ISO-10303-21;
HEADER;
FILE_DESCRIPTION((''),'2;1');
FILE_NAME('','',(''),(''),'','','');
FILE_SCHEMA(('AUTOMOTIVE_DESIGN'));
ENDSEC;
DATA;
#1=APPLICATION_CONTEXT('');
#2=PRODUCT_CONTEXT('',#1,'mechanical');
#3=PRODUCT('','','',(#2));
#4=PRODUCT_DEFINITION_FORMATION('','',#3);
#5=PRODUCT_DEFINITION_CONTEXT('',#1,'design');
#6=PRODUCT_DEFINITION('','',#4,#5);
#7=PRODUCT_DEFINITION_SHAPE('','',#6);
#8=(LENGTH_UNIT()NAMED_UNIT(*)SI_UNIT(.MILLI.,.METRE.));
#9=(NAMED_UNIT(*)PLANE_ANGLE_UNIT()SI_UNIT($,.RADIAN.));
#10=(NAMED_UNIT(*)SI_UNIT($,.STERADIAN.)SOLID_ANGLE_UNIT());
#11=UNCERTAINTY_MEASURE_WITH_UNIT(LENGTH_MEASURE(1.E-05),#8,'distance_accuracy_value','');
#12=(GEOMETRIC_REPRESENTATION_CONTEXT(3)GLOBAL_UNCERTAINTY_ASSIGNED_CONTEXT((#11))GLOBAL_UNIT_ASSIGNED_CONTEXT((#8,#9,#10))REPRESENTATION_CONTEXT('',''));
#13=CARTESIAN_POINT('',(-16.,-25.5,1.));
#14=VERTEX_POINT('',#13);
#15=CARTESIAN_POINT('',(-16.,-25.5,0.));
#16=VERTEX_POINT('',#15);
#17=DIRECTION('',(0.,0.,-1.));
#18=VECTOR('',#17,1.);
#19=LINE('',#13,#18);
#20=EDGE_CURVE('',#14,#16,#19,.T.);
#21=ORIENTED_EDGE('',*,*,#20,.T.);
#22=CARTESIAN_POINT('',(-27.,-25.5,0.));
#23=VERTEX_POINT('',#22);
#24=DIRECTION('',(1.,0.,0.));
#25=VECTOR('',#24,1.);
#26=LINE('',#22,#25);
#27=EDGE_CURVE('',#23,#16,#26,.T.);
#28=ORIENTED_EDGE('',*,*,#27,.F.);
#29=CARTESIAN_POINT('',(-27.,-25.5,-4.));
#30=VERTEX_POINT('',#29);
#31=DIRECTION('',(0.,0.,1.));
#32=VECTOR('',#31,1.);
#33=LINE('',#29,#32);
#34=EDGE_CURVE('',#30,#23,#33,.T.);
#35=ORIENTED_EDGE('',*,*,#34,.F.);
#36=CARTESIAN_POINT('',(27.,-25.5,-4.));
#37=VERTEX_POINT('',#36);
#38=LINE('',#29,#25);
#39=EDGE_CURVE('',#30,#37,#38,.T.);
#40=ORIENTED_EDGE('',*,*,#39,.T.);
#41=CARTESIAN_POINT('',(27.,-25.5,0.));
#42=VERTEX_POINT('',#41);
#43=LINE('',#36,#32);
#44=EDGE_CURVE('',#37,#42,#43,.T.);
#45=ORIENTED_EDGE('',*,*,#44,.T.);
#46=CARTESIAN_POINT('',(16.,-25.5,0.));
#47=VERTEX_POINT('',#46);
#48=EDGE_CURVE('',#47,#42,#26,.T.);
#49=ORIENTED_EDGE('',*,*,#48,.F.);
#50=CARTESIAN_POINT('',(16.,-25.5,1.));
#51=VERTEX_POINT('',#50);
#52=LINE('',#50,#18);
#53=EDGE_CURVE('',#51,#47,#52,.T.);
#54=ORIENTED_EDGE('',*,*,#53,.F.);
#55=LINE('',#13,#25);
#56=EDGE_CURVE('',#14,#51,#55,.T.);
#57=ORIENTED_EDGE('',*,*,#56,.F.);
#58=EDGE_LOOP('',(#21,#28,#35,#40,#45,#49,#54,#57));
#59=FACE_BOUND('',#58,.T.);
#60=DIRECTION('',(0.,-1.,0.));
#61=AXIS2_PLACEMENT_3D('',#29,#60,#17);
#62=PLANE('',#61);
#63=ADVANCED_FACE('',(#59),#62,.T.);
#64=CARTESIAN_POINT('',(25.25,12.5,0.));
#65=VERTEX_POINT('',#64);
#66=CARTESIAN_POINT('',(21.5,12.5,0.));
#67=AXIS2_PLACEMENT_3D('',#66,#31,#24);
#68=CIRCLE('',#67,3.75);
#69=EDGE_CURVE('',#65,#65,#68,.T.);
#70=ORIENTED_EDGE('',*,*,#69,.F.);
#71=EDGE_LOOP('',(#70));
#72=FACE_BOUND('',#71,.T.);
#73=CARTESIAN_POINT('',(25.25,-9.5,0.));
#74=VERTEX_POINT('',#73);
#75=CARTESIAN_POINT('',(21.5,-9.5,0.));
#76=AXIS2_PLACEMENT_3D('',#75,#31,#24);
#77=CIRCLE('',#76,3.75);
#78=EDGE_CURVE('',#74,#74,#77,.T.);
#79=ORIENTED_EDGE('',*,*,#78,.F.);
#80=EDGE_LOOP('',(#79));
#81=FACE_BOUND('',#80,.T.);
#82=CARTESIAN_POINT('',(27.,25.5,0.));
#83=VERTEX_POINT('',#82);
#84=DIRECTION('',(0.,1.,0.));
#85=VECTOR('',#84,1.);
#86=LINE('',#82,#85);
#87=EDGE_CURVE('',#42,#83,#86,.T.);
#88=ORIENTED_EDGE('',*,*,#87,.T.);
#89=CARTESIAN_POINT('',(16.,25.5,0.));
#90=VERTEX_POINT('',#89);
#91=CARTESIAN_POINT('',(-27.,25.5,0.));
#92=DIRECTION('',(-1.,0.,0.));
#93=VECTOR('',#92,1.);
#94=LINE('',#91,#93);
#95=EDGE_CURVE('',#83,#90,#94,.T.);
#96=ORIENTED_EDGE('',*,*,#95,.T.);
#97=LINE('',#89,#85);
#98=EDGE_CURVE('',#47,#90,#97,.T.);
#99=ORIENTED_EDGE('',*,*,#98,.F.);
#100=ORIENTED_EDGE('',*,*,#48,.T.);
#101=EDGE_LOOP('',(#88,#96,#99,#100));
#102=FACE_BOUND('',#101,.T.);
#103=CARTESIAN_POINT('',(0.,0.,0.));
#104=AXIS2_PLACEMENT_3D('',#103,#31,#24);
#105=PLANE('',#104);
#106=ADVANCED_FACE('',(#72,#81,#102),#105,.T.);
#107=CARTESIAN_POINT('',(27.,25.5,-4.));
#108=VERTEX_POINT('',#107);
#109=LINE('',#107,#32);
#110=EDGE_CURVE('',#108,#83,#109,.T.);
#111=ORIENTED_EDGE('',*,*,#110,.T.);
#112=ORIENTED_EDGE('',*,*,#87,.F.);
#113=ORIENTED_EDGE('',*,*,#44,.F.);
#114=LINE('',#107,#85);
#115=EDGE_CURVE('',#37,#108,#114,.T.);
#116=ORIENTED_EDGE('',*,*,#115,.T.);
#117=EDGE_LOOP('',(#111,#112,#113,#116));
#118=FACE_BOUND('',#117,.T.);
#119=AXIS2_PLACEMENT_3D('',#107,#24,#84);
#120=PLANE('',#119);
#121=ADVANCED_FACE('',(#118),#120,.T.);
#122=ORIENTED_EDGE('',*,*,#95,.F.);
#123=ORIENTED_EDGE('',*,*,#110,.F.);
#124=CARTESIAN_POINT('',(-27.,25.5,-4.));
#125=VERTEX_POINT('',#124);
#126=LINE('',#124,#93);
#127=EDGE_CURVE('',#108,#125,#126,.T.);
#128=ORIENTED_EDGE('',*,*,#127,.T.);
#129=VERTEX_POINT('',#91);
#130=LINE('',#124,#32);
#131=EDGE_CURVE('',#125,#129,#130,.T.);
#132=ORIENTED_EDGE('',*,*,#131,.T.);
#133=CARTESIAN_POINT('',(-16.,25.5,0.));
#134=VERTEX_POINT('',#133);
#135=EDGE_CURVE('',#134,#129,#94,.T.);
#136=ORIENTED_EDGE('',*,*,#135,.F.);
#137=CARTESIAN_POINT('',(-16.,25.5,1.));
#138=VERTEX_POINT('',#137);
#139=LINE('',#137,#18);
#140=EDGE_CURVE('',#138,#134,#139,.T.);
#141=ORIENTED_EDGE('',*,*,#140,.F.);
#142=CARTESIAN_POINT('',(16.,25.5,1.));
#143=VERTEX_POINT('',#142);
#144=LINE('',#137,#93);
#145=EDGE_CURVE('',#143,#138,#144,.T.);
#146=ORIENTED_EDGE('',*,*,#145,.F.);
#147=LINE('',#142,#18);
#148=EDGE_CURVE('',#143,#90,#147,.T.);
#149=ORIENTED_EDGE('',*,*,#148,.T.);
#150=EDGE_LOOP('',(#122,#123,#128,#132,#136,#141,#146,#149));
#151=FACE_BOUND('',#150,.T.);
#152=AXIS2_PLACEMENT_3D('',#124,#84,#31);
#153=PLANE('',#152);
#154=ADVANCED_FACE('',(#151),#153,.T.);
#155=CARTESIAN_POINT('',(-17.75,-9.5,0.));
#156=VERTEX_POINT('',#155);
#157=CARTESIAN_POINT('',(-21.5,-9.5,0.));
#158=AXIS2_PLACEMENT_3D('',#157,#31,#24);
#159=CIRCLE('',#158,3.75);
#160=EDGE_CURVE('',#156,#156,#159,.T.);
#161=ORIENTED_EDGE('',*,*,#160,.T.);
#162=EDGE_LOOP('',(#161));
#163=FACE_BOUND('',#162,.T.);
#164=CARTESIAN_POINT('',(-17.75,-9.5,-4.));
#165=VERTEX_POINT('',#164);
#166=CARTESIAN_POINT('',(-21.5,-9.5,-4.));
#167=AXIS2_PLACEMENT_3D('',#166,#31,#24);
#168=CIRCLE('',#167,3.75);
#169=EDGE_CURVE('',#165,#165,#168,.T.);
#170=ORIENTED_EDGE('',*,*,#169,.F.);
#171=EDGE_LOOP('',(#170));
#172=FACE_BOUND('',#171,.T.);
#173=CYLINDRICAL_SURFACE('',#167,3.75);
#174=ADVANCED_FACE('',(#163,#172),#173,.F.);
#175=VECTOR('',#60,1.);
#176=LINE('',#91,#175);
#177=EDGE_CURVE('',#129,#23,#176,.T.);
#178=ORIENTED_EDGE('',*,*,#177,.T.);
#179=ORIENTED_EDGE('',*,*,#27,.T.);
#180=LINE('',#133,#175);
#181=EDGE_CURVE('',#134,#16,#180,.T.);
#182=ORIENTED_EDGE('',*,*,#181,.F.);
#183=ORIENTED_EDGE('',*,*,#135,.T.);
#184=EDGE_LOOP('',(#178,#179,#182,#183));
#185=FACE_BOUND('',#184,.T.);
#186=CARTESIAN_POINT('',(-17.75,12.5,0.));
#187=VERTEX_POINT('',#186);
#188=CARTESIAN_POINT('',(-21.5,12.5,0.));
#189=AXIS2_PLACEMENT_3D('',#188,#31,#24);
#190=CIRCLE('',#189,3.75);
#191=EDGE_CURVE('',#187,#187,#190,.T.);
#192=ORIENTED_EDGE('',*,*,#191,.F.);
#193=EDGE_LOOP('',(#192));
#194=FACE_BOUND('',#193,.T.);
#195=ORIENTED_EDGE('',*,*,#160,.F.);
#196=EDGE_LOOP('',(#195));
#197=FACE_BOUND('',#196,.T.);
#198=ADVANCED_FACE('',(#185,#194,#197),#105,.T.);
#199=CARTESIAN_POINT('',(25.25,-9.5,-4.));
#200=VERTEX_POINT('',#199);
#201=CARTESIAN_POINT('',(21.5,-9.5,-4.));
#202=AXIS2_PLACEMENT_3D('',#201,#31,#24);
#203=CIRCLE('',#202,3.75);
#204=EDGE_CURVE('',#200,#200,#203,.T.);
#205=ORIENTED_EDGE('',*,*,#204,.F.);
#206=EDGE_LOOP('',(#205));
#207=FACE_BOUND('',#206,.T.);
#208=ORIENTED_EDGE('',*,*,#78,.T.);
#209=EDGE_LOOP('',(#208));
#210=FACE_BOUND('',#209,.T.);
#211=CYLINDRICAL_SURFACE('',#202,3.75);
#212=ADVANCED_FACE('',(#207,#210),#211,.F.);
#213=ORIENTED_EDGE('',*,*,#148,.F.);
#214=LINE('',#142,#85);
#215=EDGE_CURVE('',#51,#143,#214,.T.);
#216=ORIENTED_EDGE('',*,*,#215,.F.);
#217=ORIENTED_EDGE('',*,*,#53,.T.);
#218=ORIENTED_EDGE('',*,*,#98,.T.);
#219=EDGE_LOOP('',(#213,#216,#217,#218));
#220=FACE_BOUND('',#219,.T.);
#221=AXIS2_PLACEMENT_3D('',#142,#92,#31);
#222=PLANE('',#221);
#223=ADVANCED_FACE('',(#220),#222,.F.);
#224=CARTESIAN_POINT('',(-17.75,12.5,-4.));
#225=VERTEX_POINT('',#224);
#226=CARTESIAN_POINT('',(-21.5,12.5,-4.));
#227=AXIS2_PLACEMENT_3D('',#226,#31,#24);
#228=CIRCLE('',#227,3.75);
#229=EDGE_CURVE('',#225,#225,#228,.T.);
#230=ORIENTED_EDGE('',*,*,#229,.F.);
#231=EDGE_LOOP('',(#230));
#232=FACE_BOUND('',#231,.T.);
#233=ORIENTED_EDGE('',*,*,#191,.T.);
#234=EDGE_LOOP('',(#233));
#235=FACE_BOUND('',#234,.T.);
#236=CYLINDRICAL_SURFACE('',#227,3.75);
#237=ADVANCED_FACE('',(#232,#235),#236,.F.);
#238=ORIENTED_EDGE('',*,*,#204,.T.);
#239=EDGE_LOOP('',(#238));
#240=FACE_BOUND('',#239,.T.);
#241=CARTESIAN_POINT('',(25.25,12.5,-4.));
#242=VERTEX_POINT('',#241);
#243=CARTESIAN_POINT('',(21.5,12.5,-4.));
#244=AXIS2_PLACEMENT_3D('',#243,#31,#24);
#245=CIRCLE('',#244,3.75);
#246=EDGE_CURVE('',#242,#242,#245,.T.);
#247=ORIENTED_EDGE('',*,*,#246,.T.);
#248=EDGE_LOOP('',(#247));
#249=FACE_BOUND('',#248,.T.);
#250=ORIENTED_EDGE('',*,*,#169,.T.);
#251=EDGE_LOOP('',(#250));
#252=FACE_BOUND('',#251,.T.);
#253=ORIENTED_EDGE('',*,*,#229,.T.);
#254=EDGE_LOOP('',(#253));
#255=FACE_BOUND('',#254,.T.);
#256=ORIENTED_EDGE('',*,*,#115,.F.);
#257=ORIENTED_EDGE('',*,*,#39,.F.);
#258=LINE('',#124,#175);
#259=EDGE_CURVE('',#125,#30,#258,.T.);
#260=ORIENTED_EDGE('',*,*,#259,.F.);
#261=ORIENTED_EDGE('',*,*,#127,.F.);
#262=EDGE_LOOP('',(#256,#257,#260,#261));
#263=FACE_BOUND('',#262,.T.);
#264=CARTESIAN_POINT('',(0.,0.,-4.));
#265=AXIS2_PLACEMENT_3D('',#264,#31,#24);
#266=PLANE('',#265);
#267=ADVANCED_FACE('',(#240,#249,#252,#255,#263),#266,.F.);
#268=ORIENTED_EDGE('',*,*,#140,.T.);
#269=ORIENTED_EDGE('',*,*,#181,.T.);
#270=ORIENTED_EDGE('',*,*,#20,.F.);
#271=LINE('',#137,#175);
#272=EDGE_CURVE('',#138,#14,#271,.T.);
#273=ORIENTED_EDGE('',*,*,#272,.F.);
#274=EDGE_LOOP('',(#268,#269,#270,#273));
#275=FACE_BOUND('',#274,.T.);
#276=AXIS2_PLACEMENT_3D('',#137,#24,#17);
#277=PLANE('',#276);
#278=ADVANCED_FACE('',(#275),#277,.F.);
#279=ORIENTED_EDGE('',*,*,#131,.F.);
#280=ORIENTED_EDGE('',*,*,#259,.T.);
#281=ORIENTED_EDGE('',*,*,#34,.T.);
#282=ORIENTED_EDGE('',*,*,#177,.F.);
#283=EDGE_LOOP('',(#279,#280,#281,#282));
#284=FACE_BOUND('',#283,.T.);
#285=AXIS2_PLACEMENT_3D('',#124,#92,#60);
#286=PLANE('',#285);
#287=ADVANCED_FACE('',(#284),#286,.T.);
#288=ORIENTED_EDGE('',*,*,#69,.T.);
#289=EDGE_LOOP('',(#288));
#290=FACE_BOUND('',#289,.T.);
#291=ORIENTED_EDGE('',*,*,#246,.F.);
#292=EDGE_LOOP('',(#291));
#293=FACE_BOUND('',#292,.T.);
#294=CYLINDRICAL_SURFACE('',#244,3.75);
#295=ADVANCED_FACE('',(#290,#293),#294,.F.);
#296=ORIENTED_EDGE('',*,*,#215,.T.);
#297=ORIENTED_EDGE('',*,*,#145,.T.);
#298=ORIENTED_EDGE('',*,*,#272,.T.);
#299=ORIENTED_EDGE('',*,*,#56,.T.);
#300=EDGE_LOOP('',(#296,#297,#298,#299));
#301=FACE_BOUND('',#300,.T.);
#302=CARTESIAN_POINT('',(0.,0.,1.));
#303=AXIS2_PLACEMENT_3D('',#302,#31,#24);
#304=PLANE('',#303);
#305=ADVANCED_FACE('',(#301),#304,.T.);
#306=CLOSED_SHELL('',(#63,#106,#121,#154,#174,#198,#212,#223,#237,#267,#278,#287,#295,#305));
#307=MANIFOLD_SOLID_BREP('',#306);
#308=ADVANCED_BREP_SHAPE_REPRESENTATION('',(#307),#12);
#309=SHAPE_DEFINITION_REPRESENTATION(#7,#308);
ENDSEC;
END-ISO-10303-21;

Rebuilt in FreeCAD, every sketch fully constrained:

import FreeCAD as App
import Part
import Sketcher
from FreeCAD import Vector
Q = App.Units.Quantity

doc = App.newDocument("Part")
body = doc.addObject("PartDesign::Body", "Body")

# Sketch on XY plane
sketch1 = body.newObject("Sketcher::SketchObject", "Sketch")
sketch1.AttachmentSupport = (doc.getObject("XY_Plane"), [""])
sketch1.MapMode = "FlatFace"
sketch1.addGeometry([
    Part.LineSegment(Vector(-27, 25.5, 0), Vector(-27, -25.5, 0)),  # 0
    Part.LineSegment(Vector(-27, -25.5, 0), Vector(27, -25.5, 0)),  # 1
    Part.LineSegment(Vector(27, -25.5, 0), Vector(27, 25.5, 0)),  # 2
    Part.LineSegment(Vector(27, 25.5, 0), Vector(-27, 25.5, 0)),  # 3
    Part.Circle(Vector(-21.5, -9.5, 0), Vector(0, 0, 1), 3.8),  # 4
    Part.Circle(Vector(21.5, -9.5, 0), Vector(0, 0, 1), 3.8),  # 5
    Part.Circle(Vector(-21.5, 12.5, 0), Vector(0, 0, 1), 3.8),  # 6
    Part.Circle(Vector(21.5, 12.5, 0), Vector(0, 0, 1), 3.8),  # 7
], False)
sketch1.addConstraint([
    Sketcher.Constraint("Coincident", 0, 2, 1, 1),
    Sketcher.Constraint("Coincident", 1, 2, 2, 1),
    Sketcher.Constraint("Coincident", 2, 2, 3, 1),
    Sketcher.Constraint("Coincident", 3, 2, 0, 1),
    Sketcher.Constraint("Vertical", 0),
    Sketcher.Constraint("Horizontal", 1),
    Sketcher.Constraint("Vertical", 2),
    Sketcher.Constraint("Horizontal", 3),
    Sketcher.Constraint("Equal", 4, 5),
    Sketcher.Constraint("Equal", 5, 6),
    Sketcher.Constraint("Equal", 6, 7),
    Sketcher.Constraint("Symmetric", 0, 2, 2, 2, -1, 1),
    Sketcher.Constraint("Symmetric", 4, 3, 5, 3, -2),
    Sketcher.Constraint("Symmetric", 6, 3, 7, 3, -2),
    Sketcher.Constraint("Vertical", 4, 3, 6, 3),
    Sketcher.Constraint("Diameter", 4, Q("7.5 mm")),
    Sketcher.Constraint("DistanceX", 1, 1, 1, 2, Q("54 mm")),
    Sketcher.Constraint("DistanceY", 0, 2, 0, 1, Q("51 mm")),
    Sketcher.Constraint("DistanceX", 4, 3, 5, 3, Q("43 mm")),
    Sketcher.Constraint("DistanceY", 4, 3, 6, 3, Q("22 mm")),
    Sketcher.Constraint("DistanceY", 0, 2, 4, 3, Q("16 mm")),
])
pad1 = body.newObject("PartDesign::Pad", "Pad")
pad1.Profile = sketch1
pad1.Length = 4
pad1.Reversed = True

# Sketch on XY plane
sketch2 = body.newObject("Sketcher::SketchObject", "Sketch001")
sketch2.AttachmentSupport = (doc.getObject("XY_Plane"), [""])
sketch2.MapMode = "FlatFace"
sketch2.addGeometry([
    Part.LineSegment(Vector(-16, 26, 0), Vector(-16, -26, 0)),
    Part.LineSegment(Vector(-16, -26, 0), Vector(16, -26, 0)),
    Part.LineSegment(Vector(16, -26, 0), Vector(16, 26, 0)),
    Part.LineSegment(Vector(16, 26, 0), Vector(-16, 26, 0)),
], False)
sketch2.addConstraint([
    Sketcher.Constraint("Coincident", 0, 2, 1, 1),
    Sketcher.Constraint("Coincident", 1, 2, 2, 1),
    Sketcher.Constraint("Coincident", 2, 2, 3, 1),
    Sketcher.Constraint("Coincident", 3, 2, 0, 1),
    Sketcher.Constraint("Vertical", 0),
    Sketcher.Constraint("Horizontal", 1),
    Sketcher.Constraint("Vertical", 2),
    Sketcher.Constraint("Horizontal", 3),
    Sketcher.Constraint("Symmetric", 0, 2, 2, 2, -1, 1),
    Sketcher.Constraint("DistanceX", 1, 1, 1, 2, Q("32 mm")),
    Sketcher.Constraint("DistanceY", 0, 2, 0, 1, Q("51 mm")),
])
pad2 = body.newObject("PartDesign::Pad", "Pad001")
pad2.Profile = sketch2
pad2.Length = 1

doc.recompute()
